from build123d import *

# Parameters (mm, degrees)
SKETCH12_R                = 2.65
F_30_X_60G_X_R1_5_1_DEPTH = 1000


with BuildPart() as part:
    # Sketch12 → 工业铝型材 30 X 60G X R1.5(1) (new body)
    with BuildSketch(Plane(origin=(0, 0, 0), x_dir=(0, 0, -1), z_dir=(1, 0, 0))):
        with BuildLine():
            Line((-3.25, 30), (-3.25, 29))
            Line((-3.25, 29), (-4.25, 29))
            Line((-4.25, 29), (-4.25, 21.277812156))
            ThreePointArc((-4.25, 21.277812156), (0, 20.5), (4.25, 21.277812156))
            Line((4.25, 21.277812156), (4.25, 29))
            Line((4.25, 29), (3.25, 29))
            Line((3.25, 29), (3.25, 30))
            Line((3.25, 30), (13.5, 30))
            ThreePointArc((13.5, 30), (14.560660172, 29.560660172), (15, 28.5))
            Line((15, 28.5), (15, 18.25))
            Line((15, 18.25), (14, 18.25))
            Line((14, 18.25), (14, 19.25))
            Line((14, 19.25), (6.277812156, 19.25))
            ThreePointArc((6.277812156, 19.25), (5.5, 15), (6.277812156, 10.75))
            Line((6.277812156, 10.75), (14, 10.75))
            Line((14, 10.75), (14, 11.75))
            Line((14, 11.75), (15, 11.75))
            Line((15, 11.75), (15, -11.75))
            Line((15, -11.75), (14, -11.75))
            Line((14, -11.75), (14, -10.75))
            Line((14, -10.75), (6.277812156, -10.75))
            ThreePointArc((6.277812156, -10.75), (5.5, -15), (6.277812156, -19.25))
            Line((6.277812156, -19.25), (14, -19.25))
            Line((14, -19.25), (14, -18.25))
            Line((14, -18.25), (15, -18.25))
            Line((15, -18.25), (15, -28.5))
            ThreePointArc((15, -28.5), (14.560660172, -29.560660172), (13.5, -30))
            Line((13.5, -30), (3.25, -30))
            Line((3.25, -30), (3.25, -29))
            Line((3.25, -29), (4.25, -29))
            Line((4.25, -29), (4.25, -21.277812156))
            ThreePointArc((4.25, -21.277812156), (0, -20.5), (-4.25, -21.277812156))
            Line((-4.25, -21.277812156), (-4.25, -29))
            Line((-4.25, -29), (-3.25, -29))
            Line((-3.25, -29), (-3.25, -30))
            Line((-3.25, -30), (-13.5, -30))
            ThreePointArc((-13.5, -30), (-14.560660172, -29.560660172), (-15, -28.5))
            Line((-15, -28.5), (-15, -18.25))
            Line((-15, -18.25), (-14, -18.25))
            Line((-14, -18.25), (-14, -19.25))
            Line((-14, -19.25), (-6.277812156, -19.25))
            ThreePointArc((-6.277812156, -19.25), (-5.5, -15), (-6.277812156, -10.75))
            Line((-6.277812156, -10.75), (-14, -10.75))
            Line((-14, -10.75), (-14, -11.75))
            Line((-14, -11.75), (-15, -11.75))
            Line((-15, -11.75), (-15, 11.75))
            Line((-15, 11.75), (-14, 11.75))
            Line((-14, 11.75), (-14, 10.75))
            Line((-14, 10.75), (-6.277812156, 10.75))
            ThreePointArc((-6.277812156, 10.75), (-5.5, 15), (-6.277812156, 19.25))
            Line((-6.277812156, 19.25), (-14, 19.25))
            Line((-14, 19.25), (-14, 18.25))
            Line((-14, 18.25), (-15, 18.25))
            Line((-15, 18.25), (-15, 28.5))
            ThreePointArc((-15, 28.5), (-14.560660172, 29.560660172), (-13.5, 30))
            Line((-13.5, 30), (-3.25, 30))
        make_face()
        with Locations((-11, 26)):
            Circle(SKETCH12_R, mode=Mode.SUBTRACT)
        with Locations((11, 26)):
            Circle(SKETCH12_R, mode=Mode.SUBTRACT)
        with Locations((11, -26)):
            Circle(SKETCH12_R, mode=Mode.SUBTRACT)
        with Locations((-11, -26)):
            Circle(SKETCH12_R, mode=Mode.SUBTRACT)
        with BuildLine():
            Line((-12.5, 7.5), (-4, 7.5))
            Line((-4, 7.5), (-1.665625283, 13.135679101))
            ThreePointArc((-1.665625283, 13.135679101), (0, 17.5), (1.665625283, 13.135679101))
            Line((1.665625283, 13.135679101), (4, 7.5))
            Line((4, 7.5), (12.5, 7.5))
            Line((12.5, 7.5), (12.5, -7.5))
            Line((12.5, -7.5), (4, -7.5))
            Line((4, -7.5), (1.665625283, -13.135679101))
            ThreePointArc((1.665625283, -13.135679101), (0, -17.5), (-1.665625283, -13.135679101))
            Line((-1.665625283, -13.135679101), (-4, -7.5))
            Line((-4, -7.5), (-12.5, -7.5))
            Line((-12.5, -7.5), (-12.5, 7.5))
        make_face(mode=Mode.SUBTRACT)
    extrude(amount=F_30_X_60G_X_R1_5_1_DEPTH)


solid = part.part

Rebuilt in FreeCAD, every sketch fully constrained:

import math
import FreeCAD as App
import Part
import Sketcher

V = App.Vector
Q = App.Units.Quantity

doc = App.newDocument("Part")
body = doc.addObject("PartDesign::Body", "Body")

# Sketch on YZ plane
sketch1 = body.newObject("Sketcher::SketchObject", "Sketch")
sketch1.AttachmentSupport = (doc.getObject("YZ_Plane"), [""])
sketch1.MapMode = "FlatFace"
sketch1.addGeometry([
    Part.LineSegment(V(29, 3.2, 0), V(30, 3.2, 0)),  # 0
    Part.LineSegment(V(30, 3.2, 0), V(30, 13.5, 0)),  # 1
    Part.ArcOfCircle(Part.Circle(V(28.5, 13.5, 0), V(0, 0, 1), 1.5), math.radians(0), math.radians(90)),  # 2
    Part.LineSegment(V(28.5, 15, 0), V(18.2, 15, 0)),  # 3
    Part.LineSegment(V(18.2, 15, 0), V(18.2, 14, 0)),  # 4
    Part.LineSegment(V(18.2, 14, 0), V(19.2, 14, 0)),  # 5
    Part.LineSegment(V(19.2, 14, 0), V(19.2, 6.3, 0)),  # 6
    Part.ArcOfCircle(Part.Circle(V(15, 17.5, 0), V(0, 0, 1), 12), math.radians(-111), math.radians(-69)),  # 7
    Part.LineSegment(V(10.8, 6.3, 0), V(10.8, 14, 0)),  # 8
    Part.LineSegment(V(10.8, 14, 0), V(11.8, 14, 0)),  # 9
    Part.LineSegment(V(11.8, 14, 0), V(11.8, 15, 0)),  # 10
    Part.LineSegment(V(11.8, 15, 0), V(-11.8, 15, 0)),  # 11
    Part.LineSegment(V(-11.8, 15, 0), V(-11.8, 14, 0)),  # 12
    Part.LineSegment(V(-11.8, 14, 0), V(-10.8, 14, 0)),  # 13
    Part.LineSegment(V(-10.8, 14, 0), V(-10.8, 6.3, 0)),  # 14
    Part.ArcOfCircle(Part.Circle(V(-15, 17.5, 0), V(0, 0, 1), 12), math.radians(-111), math.radians(-69)),  # 15
    Part.LineSegment(V(-19.2, 6.3, 0), V(-19.2, 14, 0)),  # 16
    Part.LineSegment(V(-19.2, 14, 0), V(-18.2, 14, 0)),  # 17
    Part.LineSegment(V(-18.2, 14, 0), V(-18.2, 15, 0)),  # 18
    Part.LineSegment(V(-18.2, 15, 0), V(-28.5, 15, 0)),  # 19
    Part.ArcOfCircle(Part.Circle(V(-28.5, 13.5, 0), V(0, 0, 1), 1.5), math.radians(90), math.radians(180)),  # 20
    Part.LineSegment(V(-30, 13.5, 0), V(-30, 3.2, 0)),  # 21
    Part.LineSegment(V(-30, 3.2, 0), V(-29, 3.2, 0)),  # 22
    Part.LineSegment(V(-29, 3.2, 0), V(-29, 4.2, 0)),  # 23
    Part.LineSegment(V(-29, 4.2, 0), V(-21.3, 4.2, 0)),  # 24
    Part.ArcOfCircle(Part.Circle(V(-32.5, 0, 0), V(0, 0, 1), 12), math.radians(-21), math.radians(21)),  # 25
    Part.LineSegment(V(-21.3, -4.2, 0), V(-29, -4.2, 0)),  # 26
    Part.LineSegment(V(-29, -4.2, 0), V(-29, -3.2, 0)),  # 27
    Part.LineSegment(V(-29, -3.2, 0), V(-30, -3.2, 0)),  # 28
    Part.LineSegment(V(-30, -3.2, 0), V(-30, -13.5, 0)),  # 29
    Part.ArcOfCircle(Part.Circle(V(-28.5, -13.5, 0), V(0, 0, 1), 1.5), math.radians(180), math.radians(270)),  # 30
    Part.LineSegment(V(-28.5, -15, 0), V(-18.2, -15, 0)),  # 31
    Part.LineSegment(V(-18.2, -15, 0), V(-18.2, -14, 0)),  # 32
    Part.LineSegment(V(-18.2, -14, 0), V(-19.2, -14, 0)),  # 33
    Part.LineSegment(V(-19.2, -14, 0), V(-19.2, -6.3, 0)),  # 34
    Part.ArcOfCircle(Part.Circle(V(-15, -17.5, 0), V(0, 0, 1), 12), math.radians(69), math.radians(111)),  # 35
    Part.LineSegment(V(-10.8, -6.3, 0), V(-10.8, -14, 0)),  # 36
    Part.LineSegment(V(-10.8, -14, 0), V(-11.8, -14, 0)),  # 37
    Part.LineSegment(V(-11.8, -14, 0), V(-11.8, -15, 0)),  # 38
    Part.LineSegment(V(-11.8, -15, 0), V(11.8, -15, 0)),  # 39
    Part.LineSegment(V(11.8, -15, 0), V(11.8, -14, 0)),  # 40
    Part.LineSegment(V(11.8, -14, 0), V(10.8, -14, 0)),  # 41
    Part.LineSegment(V(10.8, -14, 0), V(10.8, -6.3, 0)),  # 42
    Part.ArcOfCircle(Part.Circle(V(15, -17.5, 0), V(0, 0, 1), 12), math.radians(69), math.radians(111)),  # 43
    Part.LineSegment(V(19.2, -6.3, 0), V(19.2, -14, 0)),  # 44
    Part.LineSegment(V(19.2, -14, 0), V(18.2, -14, 0)),  # 45
    Part.LineSegment(V(18.2, -14, 0), V(18.2, -15, 0)),  # 46
    Part.LineSegment(V(18.2, -15, 0), V(28.5, -15, 0)),  # 47
    Part.ArcOfCircle(Part.Circle(V(28.5, -13.5, 0), V(0, 0, 1), 1.5), math.radians(-90), math.radians(0)),  # 48
    Part.LineSegment(V(30, -13.5, 0), V(30, -3.2, 0)),  # 49
    Part.LineSegment(V(30, -3.2, 0), V(29, -3.2, 0)),  # 50
    Part.LineSegment(V(29, -3.2, 0), V(29, -4.2, 0)),  # 51
    Part.LineSegment(V(29, -4.2, 0), V(21.3, -4.2, 0)),  # 52
    Part.ArcOfCircle(Part.Circle(V(32.5, 0, 0), V(0, 0, 1), 12), math.radians(159), math.radians(201)),  # 53
    Part.LineSegment(V(21.3, 4.2, 0), V(29, 4.2, 0)),  # 54
    Part.LineSegment(V(29, 4.2, 0), V(29, 3.2, 0)),  # 55
    Part.Circle(V(-26, -11, 0), V(0, 0, 1), 2.6),  # 56
    Part.Circle(V(-26, 11, 0), V(0, 0, 1), 2.6),  # 57
    Part.Circle(V(26, -11, 0), V(0, 0, 1), 2.6),  # 58
    Part.LineSegment(V(7.5, 12.5, 0), V(7.5, 4, 0)),  # 59
    Part.LineSegment(V(7.5, 4, 0), V(13.1, 1.7, 0)),  # 60
    Part.ArcOfCircle(Part.Circle(V(15, 0, 0), V(0, 0, 1), 2.5), math.radians(-138), math.radians(138)),  # 61
    Part.LineSegment(V(13.1, -1.7, 0), V(7.5, -4, 0)),  # 62
    Part.LineSegment(V(7.5, -4, 0), V(7.5, -12.5, 0)),  # 63
    Part.LineSegment(V(7.5, -12.5, 0), V(-7.5, -12.5, 0)),  # 64
    Part.LineSegment(V(-7.5, -12.5, 0), V(-7.5, -4, 0)),  # 65
    Part.LineSegment(V(-7.5, -4, 0), V(-13.1, -1.7, 0)),  # 66
    Part.ArcOfCircle(Part.Circle(V(-15, 0, 0), V(0, 0, 1), 2.5), math.radians(42), math.radians(318)),  # 67
    Part.LineSegment(V(-13.1, 1.7, 0), V(-7.5, 4, 0)),  # 68
    Part.LineSegment(V(-7.5, 4, 0), V(-7.5, 12.5, 0)),  # 69
    Part.LineSegment(V(-7.5, 12.5, 0), V(7.5, 12.5, 0)),  # 70
    Part.Circle(V(26, 11, 0), V(0, 0, 1), 2.6),  # 71
], False)
sketch1.addConstraint([
    Sketcher.Constraint("Coincident", 0, 2, 1, 1),
    Sketcher.Constraint("Tangent", 1, 2, 2, 1),
    Sketcher.Constraint("Tangent", 2, 2, 3, 1),
    Sketcher.Constraint("Coincident", 3, 2, 4, 1),
    Sketcher.Constraint("Coincident", 4, 2, 5, 1),
    Sketcher.Constraint("Coincident", 5, 2, 6, 1),
    Sketcher.Constraint("Coincident", 6, 2, 7, 2),
    Sketcher.Constraint("Coincident", 7, 1, 8, 1),
    Sketcher.Constraint("Coincident", 8, 2, 9, 1),
    Sketcher.Constraint("Coincident", 9, 2, 10, 1),
    Sketcher.Constraint("Coincident", 10, 2, 11, 1),
    Sketcher.Constraint("Coincident", 11, 2, 12, 1),
    Sketcher.Constraint("Coincident", 12, 2, 13, 1),
    Sketcher.Constraint("Coincident", 13, 2, 14, 1),
    Sketcher.Constraint("Coincident", 14, 2, 15, 2),
    Sketcher.Constraint("Coincident", 15, 1, 16, 1),
    Sketcher.Constraint("Coincident", 16, 2, 17, 1),
    Sketcher.Constraint("Coincident", 17, 2, 18, 1),
    Sketcher.Constraint("Coincident", 18, 2, 19, 1),
    Sketcher.Constraint("Tangent", 19, 2, 20, 1),
    Sketcher.Constraint("Tangent", 20, 2, 21, 1),
    Sketcher.Constraint("Coincident", 21, 2, 22, 1),
    Sketcher.Constraint("Coincident", 22, 2, 23, 1),
    Sketcher.Constraint("Coincident", 23, 2, 24, 1),
    Sketcher.Constraint("Coincident", 24, 2, 25, 2),
    Sketcher.Constraint("Coincident", 25, 1, 26, 1),
    Sketcher.Constraint("Coincident", 26, 2, 27, 1),
    Sketcher.Constraint("Coincident", 27, 2, 28, 1),
    Sketcher.Constraint("Coincident", 28, 2, 29, 1),
    Sketcher.Constraint("Tangent", 29, 2, 30, 1),
    Sketcher.Constraint("Tangent", 30, 2, 31, 1),
    Sketcher.Constraint("Coincident", 31, 2, 32, 1),
    Sketcher.Constraint("Coincident", 32, 2, 33, 1),
    Sketcher.Constraint("Coincident", 33, 2, 34, 1),
    Sketcher.Constraint("Coincident", 34, 2, 35, 2),
    Sketcher.Constraint("Coincident", 35, 1, 36, 1),
    Sketcher.Constraint("Coincident", 36, 2, 37, 1),
    Sketcher.Constraint("Coincident", 37, 2, 38, 1),
    Sketcher.Constraint("Coincident", 38, 2, 39, 1),
    Sketcher.Constraint("Coincident", 39, 2, 40, 1),
    Sketcher.Constraint("Coincident", 40, 2, 41, 1),
    Sketcher.Constraint("Coincident", 41, 2, 42, 1),
    Sketcher.Constraint("Coincident", 42, 2, 43, 2),
    Sketcher.Constraint("Coincident", 43, 1, 44, 1),
    Sketcher.Constraint("Coincident", 44, 2, 45, 1),
    Sketcher.Constraint("Coincident", 45, 2, 46, 1),
    Sketcher.Constraint("Coincident", 46, 2, 47, 1),
    Sketcher.Constraint("Tangent", 47, 2, 48, 1),
    Sketcher.Constraint("Tangent", 48, 2, 49, 1),
    Sketcher.Constraint("Coincident", 49, 2, 50, 1),
    Sketcher.Constraint("Coincident", 50, 2, 51, 1),
    Sketcher.Constraint("Coincident", 51, 2, 52, 1),
    Sketcher.Constraint("Coincident", 52, 2, 53, 2),
    Sketcher.Constraint("Coincident", 53, 1, 54, 1),
    Sketcher.Constraint("Coincident", 54, 2, 55, 1),
    Sketcher.Constraint("Coincident", 55, 2, 0, 1),
    Sketcher.Constraint("Coincident", 59, 2, 60, 1),
    Sketcher.Constraint("Coincident", 60, 2, 61, 2),
    Sketcher.Constraint("Coincident", 61, 1, 62, 1),
    Sketcher.Constraint("Coincident", 62, 2, 63, 1),
    Sketcher.Constraint("Coincident", 63, 2, 64, 1),
    Sketcher.Constraint("Coincident", 64, 2, 65, 1),
    Sketcher.Constraint("Coincident", 65, 2, 66, 1),
    Sketcher.Constraint("Coincident", 66, 2, 67, 2),
    Sketcher.Constraint("Coincident", 67, 1, 68, 1),
    Sketcher.Constraint("Coincident", 68, 2, 69, 1),
    Sketcher.Constraint("Coincident", 69, 2, 70, 1),
    Sketcher.Constraint("Coincident", 70, 2, 59, 1),
    Sketcher.Constraint("Horizontal", 0),
    Sketcher.Constraint("Vertical", 1),
    Sketcher.Constraint("Horizontal", 3),
    Sketcher.Constraint("Vertical", 4),
    Sketcher.Constraint("Horizontal", 5),
    Sketcher.Constraint("Vertical", 6),
    Sketcher.Constraint("Vertical", 8),
    Sketcher.Constraint("Horizontal", 9),
    Sketcher.Constraint("Vertical", 10),
    Sketcher.Constraint("Horizontal", 11),
    Sketcher.Constraint("Vertical", 12),
    Sketcher.Constraint("Horizontal", 13),
    Sketcher.Constraint("Vertical", 14),
    Sketcher.Constraint("Vertical", 16),
    Sketcher.Constraint("Horizontal", 17),
    Sketcher.Constraint("Vertical", 18),
    Sketcher.Constraint("Horizontal", 19),
    Sketcher.Constraint("Vertical", 21),
    Sketcher.Constraint("Horizontal", 22),
    Sketcher.Constraint("Vertical", 23),
    Sketcher.Constraint("Horizontal", 24),
    Sketcher.Constraint("Horizontal", 26),
    Sketcher.Constraint("Vertical", 27),
    Sketcher.Constraint("Horizontal", 28),
    Sketcher.Constraint("Vertical", 29),
    Sketcher.Constraint("Horizontal", 31),
    Sketcher.Constraint("Vertical", 32),
    Sketcher.Constraint("Horizontal", 33),
    Sketcher.Constraint("Vertical", 34),
    Sketcher.Constraint("Vertical", 36),
    Sketcher.Constraint("Horizontal", 37),
    Sketcher.Constraint("Vertical", 38),
    Sketcher.Constraint("Horizontal", 39),
    Sketcher.Constraint("Vertical", 40),
    Sketcher.Constraint("Horizontal", 41),
    Sketcher.Constraint("Vertical", 42),
    Sketcher.Constraint("Vertical", 44),
    Sketcher.Constraint("Horizontal", 45),
    Sketcher.Constraint("Vertical", 46),
    Sketcher.Constraint("Horizontal", 47),
    Sketcher.Constraint("Vertical", 49),
    Sketcher.Constraint("Horizontal", 50),
    Sketcher.Constraint("Vertical", 51),
    Sketcher.Constraint("Horizontal", 52),
    Sketcher.Constraint("Horizontal", 54),
    Sketcher.Constraint("Vertical", 55),
    Sketcher.Constraint("Vertical", 59),
    Sketcher.Constraint("Vertical", 63),
    Sketcher.Constraint("Horizontal", 64),
    Sketcher.Constraint("Vertical", 65),
    Sketcher.Constraint("Vertical", 69),
    Sketcher.Constraint("Horizontal", 70),
    Sketcher.Constraint("Equal", 7, 15),
    Sketcher.Constraint("Equal", 2, 20),
    Sketcher.Constraint("Equal", 15, 25),
    Sketcher.Constraint("Equal", 20, 30),
    Sketcher.Constraint("Equal", 25, 35),
    Sketcher.Constraint("Equal", 35, 43),
    Sketcher.Constraint("Equal", 30, 48),
    Sketcher.Constraint("Equal", 43, 53),
    Sketcher.Constraint("Equal", 56, 57),
    Sketcher.Constraint("Equal", 57, 58),
    Sketcher.Constraint("Equal", 61, 67),
    Sketcher.Constraint("Equal", 58, 71),
    Sketcher.Constraint("Symmetric", 2, 3, 30, 3, -1, 1),
    Sketcher.Constraint("Symmetric", 7, 3, 35, 3, -1, 1),
    Sketcher.Constraint("Symmetric", 15, 3, 43, 3, -1, 1),
    Sketcher.Constraint("Symmetric", 20, 3, 48, 3, -1, 1),
    Sketcher.Constraint("Symmetric", 25, 3, 53, 3, -1, 1),
    Sketcher.Constraint("Symmetric", 57, 3, 58, 3, -1, 1),
    Sketcher.Constraint("Symmetric", 61, 3, 67, 3, -1, 1),
    Sketcher.Constraint("Symmetric", 56, 3, 71, 3, -1, 1),
    Sketcher.Constraint("Symmetric", 4, 2, 32, 2, -1, 1),
    Sketcher.Constraint("Symmetric", 8, 2, 36, 2, -1, 1),
    Sketcher.Constraint("Symmetric", 10, 2, 38, 2, -1, 1),
    Sketcher.Constraint("Symmetric", 12, 2, 40, 2, -1, 1),
    Sketcher.Constraint("Symmetric", 16, 2, 44, 2, -1, 1),
    Sketcher.Constraint("Symmetric", 22, 2, 50, 2, -1, 1),
    Sketcher.Constraint("Symmetric", 26, 2, 54, 2, -1, 1),
    Sketcher.Constraint("Symmetric", 59, 2, 65, 2, -1, 1),
    Sketcher.Constraint("Symmetric", 62, 2, 68, 2, -1, 1),
    Sketcher.Constraint("Symmetric", 7, 3, 15, 3, -2),
    Sketcher.Constraint("Symmetric", 2, 3, 20, 3, -2),
    Sketcher.Constraint("Symmetric", 56, 3, 58, 3, -2),
    Sketcher.Constraint("Symmetric", 9, 2, 12, 2, -2),
    Sketcher.Constraint("Symmetric", 5, 2, 16, 2, -2),
    Sketcher.Constraint("Symmetric", 27, 2, 50, 2, -2),
    Sketcher.Constraint("Symmetric", 25, 1, 52, 2, -2),
    Sketcher.Constraint("Symmetric", 62, 2, 65, 2, -2),
    Sketcher.Constraint("Symmetric", 61, 1, 66, 2, -2),
    Sketcher.Constraint("Parallel", 60, 66),
    Sketcher.Constraint("Parallel", 62, 68),
    Sketcher.Constraint("Horizontal", 6, 2, 7, 1),
    Sketcher.Constraint("Horizontal", 5, 2, 8, 2),
    Sketcher.Constraint("Horizontal", 3, 2, 10, 2),
    Sketcher.Constraint("Horizontal", 7, 1, 14, 2),
    Sketcher.Constraint("Horizontal", 0, 2, 21, 2),
    Sketcher.Constraint("Horizontal", 34, 2, 35, 1),
    Sketcher.Constraint("Horizontal", 35, 1, 42, 2),
    Sketcher.Constraint("Horizontal", 24, 2, 53, 1),
    Sketcher.Constraint("Vertical", 43, 3, 61, 3),
    Sketcher.Constraint("Vertical", 18, 2, 31, 2),
    Sketcher.Constraint("Vertical", 4, 2, 45, 2),
    Sketcher.Constraint("Equal", 0, 5),
    Sketcher.Constraint("Equal", 5, 9),
    Sketcher.Constraint("Equal", 47, 1),
    Sketcher.Constraint("Equal", 50, 4),
    Sketcher.Constraint("Equal", 54, 6),
    Sketcher.Constraint("Equal", 18, 23),
    Sketcher.Constraint("Equal", 59, 63),
    Sketcher.Constraint("Radius", 7, Q("12 mm")),
    Sketcher.Constraint("Diameter", 56, Q("5.3 mm")),
    Sketcher.Constraint("Radius", 2, Q("1.5 mm")),
    Sketcher.Constraint("Radius", 61, Q("2.5 mm")),
    Sketcher.Constraint("DistanceX", 0, 1, 0, 2, Q("1 mm")),
    Sketcher.Constraint("DistanceX", 64, 2, 64, 1, Q("15 mm")),
    Sketcher.Constraint("DistanceX", 11, 2, 11, 1, Q("23.5 mm")),
    Sketcher.Constraint("DistanceY", 59, 2, 59, 1, Q("8.5 mm")),
    Sketcher.Constraint("DistanceX", -1, 1, 7, 3, Q("15 mm")),
    Sketcher.Constraint("DistanceX", 56, 3, -1, 1, Q("26 mm")),
    Sketcher.Constraint("DistanceY", 56, 3, -1, 1, Q("11 mm")),
    Sketcher.Constraint("DistanceX", -1, 1, 0, 2, Q("30 mm")),
    Sketcher.Constraint("DistanceY", -1, 1, 2, 2, Q("15 mm")),
    Sketcher.Constraint("DistanceY", -1, 1, 59, 2, Q("4 mm")),
    Sketcher.Constraint("Angle", 60, Q("-22.5 deg")),
    Sketcher.Constraint("DistanceY", -1, 1, 7, 3, Q("17.5 mm")),
])
pad1 = body.newObject("PartDesign::Pad", "Pad")
pad1.Profile = sketch1
pad1.Length = 1000

doc.recompute()
